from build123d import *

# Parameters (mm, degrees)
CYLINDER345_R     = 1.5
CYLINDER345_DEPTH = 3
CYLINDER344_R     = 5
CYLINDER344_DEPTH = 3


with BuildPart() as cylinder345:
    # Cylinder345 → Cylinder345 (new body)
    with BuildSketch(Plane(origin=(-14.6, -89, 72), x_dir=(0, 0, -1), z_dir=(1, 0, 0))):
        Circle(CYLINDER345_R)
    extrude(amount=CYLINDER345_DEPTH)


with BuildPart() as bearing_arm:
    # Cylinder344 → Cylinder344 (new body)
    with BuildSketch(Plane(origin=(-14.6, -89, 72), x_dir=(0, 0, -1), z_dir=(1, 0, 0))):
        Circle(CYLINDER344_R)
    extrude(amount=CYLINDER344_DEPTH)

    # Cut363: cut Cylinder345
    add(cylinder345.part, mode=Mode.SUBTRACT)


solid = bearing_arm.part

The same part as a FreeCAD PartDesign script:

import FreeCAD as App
import Part
import Sketcher
from FreeCAD import Vector

doc = App.newDocument("Part")
body = doc.addObject("PartDesign::Body", "Body")

# Sketch on YZ plane
sketch1 = body.newObject("Sketcher::SketchObject", "Sketch")
sketch1.AttachmentSupport = (doc.getObject("YZ_Plane"), [""])
sketch1.MapMode = "FlatFace"
sketch1.AttachmentOffset = App.Placement(Vector(0, 0, -14.6), App.Rotation())
sketch1.addGeometry(Part.Circle(Vector(-89, 72, 0), Vector(0, 0, 1), 1.5), False)
sketch1.addConstraint(Sketcher.Constraint("Diameter", 0, 3.0))
sketch1.addConstraint(Sketcher.Constraint("DistanceX", 0, 3, -1, 1, 89.0))
sketch1.addConstraint(Sketcher.Constraint("DistanceY", -1, 1, 0, 3, 72.0))
pad1 = body.newObject("PartDesign::Pad", "Pad")
pad1.Profile = sketch1
pad1.Length = 3
body2 = doc.addObject("PartDesign::Body", "Body001")

# Sketch on YZ plane
sketch2 = body2.newObject("Sketcher::SketchObject", "Sketch001")
sketch2.AttachmentSupport = (doc.getObject("YZ_Plane001"), [""])
sketch2.MapMode = "FlatFace"
sketch2.AttachmentOffset = App.Placement(Vector(0, 0, -14.6), App.Rotation())
sketch2.addGeometry(Part.Circle(Vector(-89, 72, 0), Vector(0, 0, 1), 5), False)
sketch2.addConstraint(Sketcher.Constraint("Diameter", 0, 10.0))
sketch2.addConstraint(Sketcher.Constraint("DistanceX", 0, 3, -1, 1, 89.0))
sketch2.addConstraint(Sketcher.Constraint("DistanceY", -1, 1, 0, 3, 72.0))
pad2 = body2.newObject("PartDesign::Pad", "Pad001")
pad2.Profile = sketch2
pad2.Length = 3
doc.recompute()

boolean = body2.newObject("PartDesign::Boolean", "Boolean")
boolean.Type = "Cut"
boolean.addObjects([body])

doc.recompute()
